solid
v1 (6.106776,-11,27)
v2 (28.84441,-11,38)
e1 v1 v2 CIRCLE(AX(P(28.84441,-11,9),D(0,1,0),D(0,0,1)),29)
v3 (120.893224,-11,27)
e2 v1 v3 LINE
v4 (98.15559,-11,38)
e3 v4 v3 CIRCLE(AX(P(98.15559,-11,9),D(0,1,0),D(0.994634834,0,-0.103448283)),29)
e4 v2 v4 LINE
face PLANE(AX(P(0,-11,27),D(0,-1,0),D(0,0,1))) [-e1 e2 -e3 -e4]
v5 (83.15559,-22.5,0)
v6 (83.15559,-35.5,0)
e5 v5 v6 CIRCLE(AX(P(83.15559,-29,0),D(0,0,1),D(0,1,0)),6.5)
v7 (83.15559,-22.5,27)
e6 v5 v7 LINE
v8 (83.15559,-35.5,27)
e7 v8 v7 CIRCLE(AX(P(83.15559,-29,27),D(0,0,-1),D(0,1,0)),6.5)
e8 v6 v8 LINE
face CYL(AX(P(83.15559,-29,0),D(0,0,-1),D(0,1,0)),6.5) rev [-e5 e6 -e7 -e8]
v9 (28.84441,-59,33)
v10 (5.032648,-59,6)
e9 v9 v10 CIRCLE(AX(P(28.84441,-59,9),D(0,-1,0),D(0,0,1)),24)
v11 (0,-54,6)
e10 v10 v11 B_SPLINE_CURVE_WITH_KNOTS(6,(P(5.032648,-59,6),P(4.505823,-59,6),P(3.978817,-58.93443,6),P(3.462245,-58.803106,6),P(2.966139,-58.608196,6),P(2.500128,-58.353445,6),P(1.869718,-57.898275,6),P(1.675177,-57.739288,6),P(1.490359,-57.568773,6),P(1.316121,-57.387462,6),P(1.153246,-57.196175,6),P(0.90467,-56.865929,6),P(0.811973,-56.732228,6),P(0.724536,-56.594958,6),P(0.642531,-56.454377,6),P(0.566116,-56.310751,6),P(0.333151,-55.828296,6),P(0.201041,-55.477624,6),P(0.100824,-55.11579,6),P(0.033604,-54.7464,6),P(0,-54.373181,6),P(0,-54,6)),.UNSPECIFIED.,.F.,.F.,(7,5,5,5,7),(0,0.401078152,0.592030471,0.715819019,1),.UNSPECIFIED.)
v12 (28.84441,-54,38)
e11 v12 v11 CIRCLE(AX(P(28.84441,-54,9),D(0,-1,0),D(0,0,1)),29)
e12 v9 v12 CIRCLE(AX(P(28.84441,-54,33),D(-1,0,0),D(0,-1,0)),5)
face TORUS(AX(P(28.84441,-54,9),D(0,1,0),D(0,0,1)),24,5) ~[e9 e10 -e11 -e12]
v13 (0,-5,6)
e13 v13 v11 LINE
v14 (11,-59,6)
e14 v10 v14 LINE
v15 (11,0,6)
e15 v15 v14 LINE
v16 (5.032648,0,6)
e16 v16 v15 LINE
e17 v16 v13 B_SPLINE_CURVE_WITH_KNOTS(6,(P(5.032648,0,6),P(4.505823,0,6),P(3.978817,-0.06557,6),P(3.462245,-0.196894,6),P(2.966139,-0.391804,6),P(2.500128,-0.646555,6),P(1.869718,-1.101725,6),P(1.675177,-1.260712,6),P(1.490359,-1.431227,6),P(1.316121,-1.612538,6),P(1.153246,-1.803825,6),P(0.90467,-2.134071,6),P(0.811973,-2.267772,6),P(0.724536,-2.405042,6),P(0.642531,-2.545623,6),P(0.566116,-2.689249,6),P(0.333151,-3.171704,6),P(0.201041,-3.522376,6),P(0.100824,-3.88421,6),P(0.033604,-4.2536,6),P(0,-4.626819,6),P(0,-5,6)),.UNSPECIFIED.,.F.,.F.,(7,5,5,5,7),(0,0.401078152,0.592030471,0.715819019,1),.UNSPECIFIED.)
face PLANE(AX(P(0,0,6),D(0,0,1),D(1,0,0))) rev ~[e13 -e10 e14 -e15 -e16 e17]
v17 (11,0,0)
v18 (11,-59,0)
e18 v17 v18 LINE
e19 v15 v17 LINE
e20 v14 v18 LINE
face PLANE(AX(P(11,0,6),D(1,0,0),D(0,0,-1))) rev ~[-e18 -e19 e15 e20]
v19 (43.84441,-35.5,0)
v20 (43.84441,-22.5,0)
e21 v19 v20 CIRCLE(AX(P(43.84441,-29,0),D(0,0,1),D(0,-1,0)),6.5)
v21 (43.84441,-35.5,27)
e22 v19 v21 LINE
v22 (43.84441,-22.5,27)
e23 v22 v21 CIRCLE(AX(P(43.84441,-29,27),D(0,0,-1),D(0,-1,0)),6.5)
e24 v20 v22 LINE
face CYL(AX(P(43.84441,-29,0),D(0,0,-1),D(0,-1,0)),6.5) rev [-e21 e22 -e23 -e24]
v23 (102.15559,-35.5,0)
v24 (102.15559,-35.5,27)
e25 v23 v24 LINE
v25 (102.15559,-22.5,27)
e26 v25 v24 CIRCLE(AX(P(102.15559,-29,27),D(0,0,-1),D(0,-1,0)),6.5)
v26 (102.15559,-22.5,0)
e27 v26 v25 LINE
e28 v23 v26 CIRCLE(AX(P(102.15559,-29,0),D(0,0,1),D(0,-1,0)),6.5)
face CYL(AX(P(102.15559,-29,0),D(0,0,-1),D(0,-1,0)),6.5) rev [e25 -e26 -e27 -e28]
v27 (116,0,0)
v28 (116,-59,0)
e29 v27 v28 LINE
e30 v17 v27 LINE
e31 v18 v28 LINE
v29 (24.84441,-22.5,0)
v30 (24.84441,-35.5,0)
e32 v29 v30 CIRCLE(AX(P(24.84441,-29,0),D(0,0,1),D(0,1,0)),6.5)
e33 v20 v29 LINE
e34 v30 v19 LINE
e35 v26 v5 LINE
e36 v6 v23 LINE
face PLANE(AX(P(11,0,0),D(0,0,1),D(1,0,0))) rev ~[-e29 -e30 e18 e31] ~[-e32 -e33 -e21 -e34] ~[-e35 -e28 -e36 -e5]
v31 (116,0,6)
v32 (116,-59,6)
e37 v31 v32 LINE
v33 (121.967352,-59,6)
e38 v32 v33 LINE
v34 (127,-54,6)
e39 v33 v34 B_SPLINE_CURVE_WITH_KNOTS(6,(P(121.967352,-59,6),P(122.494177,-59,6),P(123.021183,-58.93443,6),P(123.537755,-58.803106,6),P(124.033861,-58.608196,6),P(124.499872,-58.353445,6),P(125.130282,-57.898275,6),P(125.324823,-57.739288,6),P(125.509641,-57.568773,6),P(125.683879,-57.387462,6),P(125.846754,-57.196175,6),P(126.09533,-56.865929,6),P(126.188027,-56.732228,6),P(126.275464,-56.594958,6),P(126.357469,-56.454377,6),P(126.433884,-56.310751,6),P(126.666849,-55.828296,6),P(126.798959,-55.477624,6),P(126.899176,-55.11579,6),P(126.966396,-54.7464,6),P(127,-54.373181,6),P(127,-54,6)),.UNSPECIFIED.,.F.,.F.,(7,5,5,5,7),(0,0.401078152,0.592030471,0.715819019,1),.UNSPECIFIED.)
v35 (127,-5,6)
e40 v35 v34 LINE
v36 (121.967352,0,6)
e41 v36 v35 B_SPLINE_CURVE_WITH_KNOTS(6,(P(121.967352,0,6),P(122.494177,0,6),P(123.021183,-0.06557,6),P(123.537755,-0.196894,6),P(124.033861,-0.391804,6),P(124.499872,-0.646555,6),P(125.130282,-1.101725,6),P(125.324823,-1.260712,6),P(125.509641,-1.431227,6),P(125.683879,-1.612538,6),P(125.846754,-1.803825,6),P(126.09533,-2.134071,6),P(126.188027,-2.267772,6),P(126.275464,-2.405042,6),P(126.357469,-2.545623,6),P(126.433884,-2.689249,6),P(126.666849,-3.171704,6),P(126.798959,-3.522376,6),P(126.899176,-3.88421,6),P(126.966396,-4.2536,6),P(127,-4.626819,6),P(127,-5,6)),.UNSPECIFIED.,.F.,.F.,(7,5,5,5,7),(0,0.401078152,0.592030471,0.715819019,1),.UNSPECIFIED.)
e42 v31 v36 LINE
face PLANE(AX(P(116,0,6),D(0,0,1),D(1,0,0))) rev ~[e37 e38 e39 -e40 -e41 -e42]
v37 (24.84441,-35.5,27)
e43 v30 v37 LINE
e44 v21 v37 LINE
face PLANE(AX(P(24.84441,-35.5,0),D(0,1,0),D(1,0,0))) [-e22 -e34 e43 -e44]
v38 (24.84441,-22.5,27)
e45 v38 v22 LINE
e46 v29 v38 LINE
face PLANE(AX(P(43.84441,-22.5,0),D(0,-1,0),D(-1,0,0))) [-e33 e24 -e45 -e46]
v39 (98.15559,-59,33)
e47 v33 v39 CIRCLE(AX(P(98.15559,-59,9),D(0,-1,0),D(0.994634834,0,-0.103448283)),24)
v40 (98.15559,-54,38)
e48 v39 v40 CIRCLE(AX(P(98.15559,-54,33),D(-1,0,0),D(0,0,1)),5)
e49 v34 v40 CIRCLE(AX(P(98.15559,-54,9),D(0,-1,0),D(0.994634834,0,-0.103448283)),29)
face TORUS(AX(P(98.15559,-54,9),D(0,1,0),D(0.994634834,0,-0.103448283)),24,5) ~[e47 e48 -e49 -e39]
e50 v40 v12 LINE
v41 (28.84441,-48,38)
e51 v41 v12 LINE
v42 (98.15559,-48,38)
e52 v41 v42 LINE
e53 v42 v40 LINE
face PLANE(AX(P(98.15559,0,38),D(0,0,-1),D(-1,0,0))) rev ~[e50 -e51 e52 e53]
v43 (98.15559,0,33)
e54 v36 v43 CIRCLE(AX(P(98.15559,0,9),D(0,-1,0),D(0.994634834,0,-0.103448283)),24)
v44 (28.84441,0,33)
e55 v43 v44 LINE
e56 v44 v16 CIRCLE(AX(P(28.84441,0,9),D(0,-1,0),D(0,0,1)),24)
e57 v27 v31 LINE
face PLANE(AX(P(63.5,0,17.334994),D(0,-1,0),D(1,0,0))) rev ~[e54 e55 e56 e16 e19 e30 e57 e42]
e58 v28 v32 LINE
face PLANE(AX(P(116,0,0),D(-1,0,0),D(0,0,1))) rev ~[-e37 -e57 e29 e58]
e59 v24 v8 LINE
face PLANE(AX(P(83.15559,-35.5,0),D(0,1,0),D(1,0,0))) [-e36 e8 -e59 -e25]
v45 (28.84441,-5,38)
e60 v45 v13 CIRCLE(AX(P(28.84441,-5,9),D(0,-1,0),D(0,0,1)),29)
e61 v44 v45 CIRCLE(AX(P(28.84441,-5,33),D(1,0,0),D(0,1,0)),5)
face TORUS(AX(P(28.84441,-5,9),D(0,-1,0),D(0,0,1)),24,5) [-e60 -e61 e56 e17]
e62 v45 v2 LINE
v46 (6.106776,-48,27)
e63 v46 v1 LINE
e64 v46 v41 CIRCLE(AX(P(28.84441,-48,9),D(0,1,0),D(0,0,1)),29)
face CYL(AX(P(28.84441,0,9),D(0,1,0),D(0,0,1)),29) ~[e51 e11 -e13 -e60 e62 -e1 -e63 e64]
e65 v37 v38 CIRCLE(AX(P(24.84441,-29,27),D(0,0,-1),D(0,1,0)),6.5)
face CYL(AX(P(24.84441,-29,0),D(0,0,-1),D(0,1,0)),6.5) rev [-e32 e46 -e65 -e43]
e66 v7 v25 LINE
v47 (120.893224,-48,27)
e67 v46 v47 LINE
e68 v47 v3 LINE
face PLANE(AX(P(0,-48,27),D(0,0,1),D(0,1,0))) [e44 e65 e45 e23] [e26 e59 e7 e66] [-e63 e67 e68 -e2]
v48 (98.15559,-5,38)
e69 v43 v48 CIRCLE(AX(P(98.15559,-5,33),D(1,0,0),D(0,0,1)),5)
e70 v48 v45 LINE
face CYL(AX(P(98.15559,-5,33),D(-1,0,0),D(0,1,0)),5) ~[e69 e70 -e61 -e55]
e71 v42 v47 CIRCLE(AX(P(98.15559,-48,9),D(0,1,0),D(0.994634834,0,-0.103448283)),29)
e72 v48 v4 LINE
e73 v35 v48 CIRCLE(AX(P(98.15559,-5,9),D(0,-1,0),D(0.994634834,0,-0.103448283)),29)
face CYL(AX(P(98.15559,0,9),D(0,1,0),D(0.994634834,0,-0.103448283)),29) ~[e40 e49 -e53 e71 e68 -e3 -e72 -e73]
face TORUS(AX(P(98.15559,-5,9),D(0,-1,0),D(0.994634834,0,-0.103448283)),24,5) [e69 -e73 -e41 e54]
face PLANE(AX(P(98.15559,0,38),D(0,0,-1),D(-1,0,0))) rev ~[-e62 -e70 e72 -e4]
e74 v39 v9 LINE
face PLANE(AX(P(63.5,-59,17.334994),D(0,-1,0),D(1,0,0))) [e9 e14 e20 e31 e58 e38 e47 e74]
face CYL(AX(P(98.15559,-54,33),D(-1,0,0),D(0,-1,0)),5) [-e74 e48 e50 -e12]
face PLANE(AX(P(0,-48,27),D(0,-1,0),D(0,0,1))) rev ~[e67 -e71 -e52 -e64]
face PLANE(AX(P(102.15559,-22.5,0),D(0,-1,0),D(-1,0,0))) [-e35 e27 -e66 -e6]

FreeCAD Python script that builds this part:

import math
import FreeCAD as App
import Part
import Sketcher

V = App.Vector


def edges_at(feature, points):
    """Names of the edges that pass closest to the given points."""
    edges = feature.Shape.Edges
    near = lambda p: min(range(len(edges)), key=lambda i: edges[i].distToShape(Part.Vertex(*p))[0])
    return sorted({f"Edge{near(p) + 1}" for p in points})


def add_polygon(sketch, points):
    """Adds a closed chain of lines whose ends are joined by coincident constraints."""
    first, n = sketch.GeometryCount, len(points)
    for a, b in zip(points, points[1:] + points[:1]):
        sketch.addGeometry(Part.LineSegment(App.Vector(*a, 0), App.Vector(*b, 0)), False)
    for i in range(n):
        sketch.addConstraint(Sketcher.Constraint("Coincident", first + i, 2, first + (i + 1) % n, 1))

doc = App.newDocument("Part")
body = doc.addObject("PartDesign::Body", "Body")

sketch1 = doc.addObject("Sketcher::SketchObject", "Sketch")
body.addObject(sketch1)
sketch1.AttachmentSupport = (doc.XZ_Plane, [""])
sketch1.MapMode = "FlatFace"
sketch1.addGeometry(Part.LineSegment(V(11, 6, 0), V(11, 0, 0)), False)
sketch1.addGeometry(Part.LineSegment(V(11, 0, 0), V(116, 0, 0)), False)
sketch1.addGeometry(Part.LineSegment(V(116, 0, 0), V(116, 6, 0)), False)
sketch1.addGeometry(Part.LineSegment(V(116, 6, 0), V(127, 6, 0)), False)
sketch1.addGeometry(Part.ArcOfCircle(Part.Circle(V(98.15559, 9, 0), V(0, 0, 1), 29), math.radians(-5.937773), math.radians(90)), False)
sketch1.addGeometry(Part.LineSegment(V(98.15559, 38, 0), V(28.84441, 38, 0)), False)
sketch1.addGeometry(Part.ArcOfCircle(Part.Circle(V(28.84441, 9, 0), V(0, 0, 1), 29), math.radians(90), math.radians(185.937773)), False)
sketch1.addGeometry(Part.LineSegment(V(0, 6, 0), V(11, 6, 0)), False)
sketch1.addConstraint(Sketcher.Constraint("Coincident", 0, 2, 1, 1))
sketch1.addConstraint(Sketcher.Constraint("Coincident", 1, 2, 2, 1))
sketch1.addConstraint(Sketcher.Constraint("Coincident", 2, 2, 3, 1))
sketch1.addConstraint(Sketcher.Constraint("Coincident", 3, 2, 4, 1))
sketch1.addConstraint(Sketcher.Constraint("Tangent", 4, 2, 5, 1))
sketch1.addConstraint(Sketcher.Constraint("Tangent", 5, 2, 6, 1))
sketch1.addConstraint(Sketcher.Constraint("Coincident", 6, 2, 7, 1))
sketch1.addConstraint(Sketcher.Constraint("Coincident", 7, 2, 0, 1))
sketch1.addConstraint(Sketcher.Constraint("Vertical", 0))
sketch1.addConstraint(Sketcher.Constraint("Horizontal", 1))
sketch1.addConstraint(Sketcher.Constraint("Vertical", 2))
sketch1.addConstraint(Sketcher.Constraint("Horizontal", 3))
sketch1.addConstraint(Sketcher.Constraint("Horizontal", 5))
sketch1.addConstraint(Sketcher.Constraint("Horizontal", 7))
sketch1.addConstraint(Sketcher.Constraint("Equal", 4, 6))
sketch1.addConstraint(Sketcher.Constraint("PointOnObject", 0, 2, -1))
sketch1.addConstraint(Sketcher.Constraint("PointOnObject", 6, 2, -2))
sketch1.addConstraint(Sketcher.Constraint("Horizontal", 3, 2, 6, 2))
sketch1.addConstraint(Sketcher.Constraint("Equal", 3, 7))
sketch1.addConstraint(Sketcher.Constraint("Radius", 4, 29.0))
sketch1.addConstraint(Sketcher.Constraint("DistanceX", 1, 1, 1, 2, 105.0))
sketch1.addConstraint(Sketcher.Constraint("DistanceX", 3, 1, 3, 2, 11.0))
sketch1.addConstraint(Sketcher.Constraint("DistanceY", 0, 2, 0, 1, 6.0))
sketch1.addConstraint(Sketcher.Constraint("DistanceY", -1, 1, 4, 3, 9.0))
pad1 = doc.addObject("PartDesign::Pad", "Pad")
body.addObject(pad1)
pad1.Profile = sketch1
pad1.Length = 59

sketch2 = doc.addObject("Sketcher::SketchObject", "Sketch001")
body.addObject(sketch2)
sketch2.AttachmentSupport = (doc.YZ_Plane, [""])
sketch2.MapMode = "FlatFace"
add_polygon(sketch2, [(-48, 38), (-48, 27), (-11, 27), (-11, 38)])
sketch2.addConstraint(Sketcher.Constraint("Vertical", 0))
sketch2.addConstraint(Sketcher.Constraint("Horizontal", 1))
sketch2.addConstraint(Sketcher.Constraint("Vertical", 2))
sketch2.addConstraint(Sketcher.Constraint("Horizontal", 3))
sketch2.addConstraint(Sketcher.Constraint("DistanceX", 1, 1, 1, 2, 37.0))
sketch2.addConstraint(Sketcher.Constraint("DistanceY", 0, 2, 0, 1, 11.0))
sketch2.addConstraint(Sketcher.Constraint("DistanceX", 0, 2, -1, 1, 48.0))
sketch2.addConstraint(Sketcher.Constraint("DistanceY", -1, 1, 0, 2, 27.0))
pocket1 = doc.addObject("PartDesign::Pocket", "Pocket")
body.addObject(pocket1)
pocket1.Profile = sketch2
pocket1.Length = 170
pocket1.Reversed = True

sketch3 = doc.addObject("Sketcher::SketchObject", "Sketch002")
body.addObject(sketch3)
sketch3.AttachmentSupport = (doc.XY_Plane, [""])
sketch3.MapMode = "FlatFace"
sketch3.addGeometry(Part.LineSegment(V(43.84441, -22.5, 0), V(24.84441, -22.5, 0)), False)
sketch3.addGeometry(Part.ArcOfCircle(Part.Circle(V(24.84441, -29, 0), V(0, 0, 1), 6.5), math.radians(90), math.radians(270)), False)
sketch3.addGeometry(Part.LineSegment(V(24.84441, -35.5, 0), V(43.84441, -35.5, 0)), False)
sketch3.addGeometry(Part.ArcOfCircle(Part.Circle(V(43.84441, -29, 0), V(0, 0, 1), 6.5), math.radians(-90), math.radians(90)), False)
sketch3.addGeometry(Part.LineSegment(V(102.15559, -22.5, 0), V(83.15559, -22.5, 0)), False)
sketch3.addGeometry(Part.ArcOfCircle(Part.Circle(V(83.15559, -29, 0), V(0, 0, 1), 6.5), math.radians(90), math.radians(270)), False)
sketch3.addGeometry(Part.LineSegment(V(83.15559, -35.5, 0), V(102.15559, -35.5, 0)), False)
sketch3.addGeometry(Part.ArcOfCircle(Part.Circle(V(102.15559, -29, 0), V(0, 0, 1), 6.5), math.radians(-90), math.radians(90)), False)
sketch3.addConstraint(Sketcher.Constraint("Tangent", 0, 2, 1, 1))
sketch3.addConstraint(Sketcher.Constraint("Tangent", 1, 2, 2, 1))
sketch3.addConstraint(Sketcher.Constraint("Tangent", 2, 2, 3, 1))
sketch3.addConstraint(Sketcher.Constraint("Tangent", 3, 2, 0, 1))
sketch3.addConstraint(Sketcher.Constraint("Tangent", 4, 2, 5, 1))
sketch3.addConstraint(Sketcher.Constraint("Tangent", 5, 2, 6, 1))
sketch3.addConstraint(Sketcher.Constraint("Tangent", 6, 2, 7, 1))
sketch3.addConstraint(Sketcher.Constraint("Tangent", 7, 2, 4, 1))
sketch3.addConstraint(Sketcher.Constraint("Horizontal", 0))
sketch3.addConstraint(Sketcher.Constraint("Horizontal", 2))
sketch3.addConstraint(Sketcher.Constraint("Horizontal", 4))
sketch3.addConstraint(Sketcher.Constraint("Horizontal", 6))
sketch3.addConstraint(Sketcher.Constraint("Equal", 3, 5))
sketch3.addConstraint(Sketcher.Constraint("Horizontal", 3, 3, 5, 3))
sketch3.addConstraint(Sketcher.Constraint("Equal", 2, 4))
sketch3.addConstraint(Sketcher.Constraint("Radius", 1, 6.5))
sketch3.addConstraint(Sketcher.Constraint("DistanceX", 0, 2, 0, 1, 19.0))
sketch3.addConstraint(Sketcher.Constraint("DistanceY", 1, 3, -1, 1, 29.0))
sketch3.addConstraint(Sketcher.Constraint("DistanceX", -1, 1, 1, 3, 24.84441))
sketch3.addConstraint(Sketcher.Constraint("DistanceX", -1, 1, 5, 3, 83.15559))
pocket2 = doc.addObject("PartDesign::Pocket", "Pocket001")
body.addObject(pocket2)
pocket2.Profile = sketch3
pocket2.Length = 61.20861
pocket2.Reversed = True
doc.recompute()

fillet = doc.addObject("PartDesign::Fillet", "Fillet")
body.addObject(fillet)
fillet.Base = (pocket2, edges_at(pocket2, [(7.304, -59, 28.416), (7.304, 0, 28.416)]))
fillet.Radius = 5

doc.recompute()
